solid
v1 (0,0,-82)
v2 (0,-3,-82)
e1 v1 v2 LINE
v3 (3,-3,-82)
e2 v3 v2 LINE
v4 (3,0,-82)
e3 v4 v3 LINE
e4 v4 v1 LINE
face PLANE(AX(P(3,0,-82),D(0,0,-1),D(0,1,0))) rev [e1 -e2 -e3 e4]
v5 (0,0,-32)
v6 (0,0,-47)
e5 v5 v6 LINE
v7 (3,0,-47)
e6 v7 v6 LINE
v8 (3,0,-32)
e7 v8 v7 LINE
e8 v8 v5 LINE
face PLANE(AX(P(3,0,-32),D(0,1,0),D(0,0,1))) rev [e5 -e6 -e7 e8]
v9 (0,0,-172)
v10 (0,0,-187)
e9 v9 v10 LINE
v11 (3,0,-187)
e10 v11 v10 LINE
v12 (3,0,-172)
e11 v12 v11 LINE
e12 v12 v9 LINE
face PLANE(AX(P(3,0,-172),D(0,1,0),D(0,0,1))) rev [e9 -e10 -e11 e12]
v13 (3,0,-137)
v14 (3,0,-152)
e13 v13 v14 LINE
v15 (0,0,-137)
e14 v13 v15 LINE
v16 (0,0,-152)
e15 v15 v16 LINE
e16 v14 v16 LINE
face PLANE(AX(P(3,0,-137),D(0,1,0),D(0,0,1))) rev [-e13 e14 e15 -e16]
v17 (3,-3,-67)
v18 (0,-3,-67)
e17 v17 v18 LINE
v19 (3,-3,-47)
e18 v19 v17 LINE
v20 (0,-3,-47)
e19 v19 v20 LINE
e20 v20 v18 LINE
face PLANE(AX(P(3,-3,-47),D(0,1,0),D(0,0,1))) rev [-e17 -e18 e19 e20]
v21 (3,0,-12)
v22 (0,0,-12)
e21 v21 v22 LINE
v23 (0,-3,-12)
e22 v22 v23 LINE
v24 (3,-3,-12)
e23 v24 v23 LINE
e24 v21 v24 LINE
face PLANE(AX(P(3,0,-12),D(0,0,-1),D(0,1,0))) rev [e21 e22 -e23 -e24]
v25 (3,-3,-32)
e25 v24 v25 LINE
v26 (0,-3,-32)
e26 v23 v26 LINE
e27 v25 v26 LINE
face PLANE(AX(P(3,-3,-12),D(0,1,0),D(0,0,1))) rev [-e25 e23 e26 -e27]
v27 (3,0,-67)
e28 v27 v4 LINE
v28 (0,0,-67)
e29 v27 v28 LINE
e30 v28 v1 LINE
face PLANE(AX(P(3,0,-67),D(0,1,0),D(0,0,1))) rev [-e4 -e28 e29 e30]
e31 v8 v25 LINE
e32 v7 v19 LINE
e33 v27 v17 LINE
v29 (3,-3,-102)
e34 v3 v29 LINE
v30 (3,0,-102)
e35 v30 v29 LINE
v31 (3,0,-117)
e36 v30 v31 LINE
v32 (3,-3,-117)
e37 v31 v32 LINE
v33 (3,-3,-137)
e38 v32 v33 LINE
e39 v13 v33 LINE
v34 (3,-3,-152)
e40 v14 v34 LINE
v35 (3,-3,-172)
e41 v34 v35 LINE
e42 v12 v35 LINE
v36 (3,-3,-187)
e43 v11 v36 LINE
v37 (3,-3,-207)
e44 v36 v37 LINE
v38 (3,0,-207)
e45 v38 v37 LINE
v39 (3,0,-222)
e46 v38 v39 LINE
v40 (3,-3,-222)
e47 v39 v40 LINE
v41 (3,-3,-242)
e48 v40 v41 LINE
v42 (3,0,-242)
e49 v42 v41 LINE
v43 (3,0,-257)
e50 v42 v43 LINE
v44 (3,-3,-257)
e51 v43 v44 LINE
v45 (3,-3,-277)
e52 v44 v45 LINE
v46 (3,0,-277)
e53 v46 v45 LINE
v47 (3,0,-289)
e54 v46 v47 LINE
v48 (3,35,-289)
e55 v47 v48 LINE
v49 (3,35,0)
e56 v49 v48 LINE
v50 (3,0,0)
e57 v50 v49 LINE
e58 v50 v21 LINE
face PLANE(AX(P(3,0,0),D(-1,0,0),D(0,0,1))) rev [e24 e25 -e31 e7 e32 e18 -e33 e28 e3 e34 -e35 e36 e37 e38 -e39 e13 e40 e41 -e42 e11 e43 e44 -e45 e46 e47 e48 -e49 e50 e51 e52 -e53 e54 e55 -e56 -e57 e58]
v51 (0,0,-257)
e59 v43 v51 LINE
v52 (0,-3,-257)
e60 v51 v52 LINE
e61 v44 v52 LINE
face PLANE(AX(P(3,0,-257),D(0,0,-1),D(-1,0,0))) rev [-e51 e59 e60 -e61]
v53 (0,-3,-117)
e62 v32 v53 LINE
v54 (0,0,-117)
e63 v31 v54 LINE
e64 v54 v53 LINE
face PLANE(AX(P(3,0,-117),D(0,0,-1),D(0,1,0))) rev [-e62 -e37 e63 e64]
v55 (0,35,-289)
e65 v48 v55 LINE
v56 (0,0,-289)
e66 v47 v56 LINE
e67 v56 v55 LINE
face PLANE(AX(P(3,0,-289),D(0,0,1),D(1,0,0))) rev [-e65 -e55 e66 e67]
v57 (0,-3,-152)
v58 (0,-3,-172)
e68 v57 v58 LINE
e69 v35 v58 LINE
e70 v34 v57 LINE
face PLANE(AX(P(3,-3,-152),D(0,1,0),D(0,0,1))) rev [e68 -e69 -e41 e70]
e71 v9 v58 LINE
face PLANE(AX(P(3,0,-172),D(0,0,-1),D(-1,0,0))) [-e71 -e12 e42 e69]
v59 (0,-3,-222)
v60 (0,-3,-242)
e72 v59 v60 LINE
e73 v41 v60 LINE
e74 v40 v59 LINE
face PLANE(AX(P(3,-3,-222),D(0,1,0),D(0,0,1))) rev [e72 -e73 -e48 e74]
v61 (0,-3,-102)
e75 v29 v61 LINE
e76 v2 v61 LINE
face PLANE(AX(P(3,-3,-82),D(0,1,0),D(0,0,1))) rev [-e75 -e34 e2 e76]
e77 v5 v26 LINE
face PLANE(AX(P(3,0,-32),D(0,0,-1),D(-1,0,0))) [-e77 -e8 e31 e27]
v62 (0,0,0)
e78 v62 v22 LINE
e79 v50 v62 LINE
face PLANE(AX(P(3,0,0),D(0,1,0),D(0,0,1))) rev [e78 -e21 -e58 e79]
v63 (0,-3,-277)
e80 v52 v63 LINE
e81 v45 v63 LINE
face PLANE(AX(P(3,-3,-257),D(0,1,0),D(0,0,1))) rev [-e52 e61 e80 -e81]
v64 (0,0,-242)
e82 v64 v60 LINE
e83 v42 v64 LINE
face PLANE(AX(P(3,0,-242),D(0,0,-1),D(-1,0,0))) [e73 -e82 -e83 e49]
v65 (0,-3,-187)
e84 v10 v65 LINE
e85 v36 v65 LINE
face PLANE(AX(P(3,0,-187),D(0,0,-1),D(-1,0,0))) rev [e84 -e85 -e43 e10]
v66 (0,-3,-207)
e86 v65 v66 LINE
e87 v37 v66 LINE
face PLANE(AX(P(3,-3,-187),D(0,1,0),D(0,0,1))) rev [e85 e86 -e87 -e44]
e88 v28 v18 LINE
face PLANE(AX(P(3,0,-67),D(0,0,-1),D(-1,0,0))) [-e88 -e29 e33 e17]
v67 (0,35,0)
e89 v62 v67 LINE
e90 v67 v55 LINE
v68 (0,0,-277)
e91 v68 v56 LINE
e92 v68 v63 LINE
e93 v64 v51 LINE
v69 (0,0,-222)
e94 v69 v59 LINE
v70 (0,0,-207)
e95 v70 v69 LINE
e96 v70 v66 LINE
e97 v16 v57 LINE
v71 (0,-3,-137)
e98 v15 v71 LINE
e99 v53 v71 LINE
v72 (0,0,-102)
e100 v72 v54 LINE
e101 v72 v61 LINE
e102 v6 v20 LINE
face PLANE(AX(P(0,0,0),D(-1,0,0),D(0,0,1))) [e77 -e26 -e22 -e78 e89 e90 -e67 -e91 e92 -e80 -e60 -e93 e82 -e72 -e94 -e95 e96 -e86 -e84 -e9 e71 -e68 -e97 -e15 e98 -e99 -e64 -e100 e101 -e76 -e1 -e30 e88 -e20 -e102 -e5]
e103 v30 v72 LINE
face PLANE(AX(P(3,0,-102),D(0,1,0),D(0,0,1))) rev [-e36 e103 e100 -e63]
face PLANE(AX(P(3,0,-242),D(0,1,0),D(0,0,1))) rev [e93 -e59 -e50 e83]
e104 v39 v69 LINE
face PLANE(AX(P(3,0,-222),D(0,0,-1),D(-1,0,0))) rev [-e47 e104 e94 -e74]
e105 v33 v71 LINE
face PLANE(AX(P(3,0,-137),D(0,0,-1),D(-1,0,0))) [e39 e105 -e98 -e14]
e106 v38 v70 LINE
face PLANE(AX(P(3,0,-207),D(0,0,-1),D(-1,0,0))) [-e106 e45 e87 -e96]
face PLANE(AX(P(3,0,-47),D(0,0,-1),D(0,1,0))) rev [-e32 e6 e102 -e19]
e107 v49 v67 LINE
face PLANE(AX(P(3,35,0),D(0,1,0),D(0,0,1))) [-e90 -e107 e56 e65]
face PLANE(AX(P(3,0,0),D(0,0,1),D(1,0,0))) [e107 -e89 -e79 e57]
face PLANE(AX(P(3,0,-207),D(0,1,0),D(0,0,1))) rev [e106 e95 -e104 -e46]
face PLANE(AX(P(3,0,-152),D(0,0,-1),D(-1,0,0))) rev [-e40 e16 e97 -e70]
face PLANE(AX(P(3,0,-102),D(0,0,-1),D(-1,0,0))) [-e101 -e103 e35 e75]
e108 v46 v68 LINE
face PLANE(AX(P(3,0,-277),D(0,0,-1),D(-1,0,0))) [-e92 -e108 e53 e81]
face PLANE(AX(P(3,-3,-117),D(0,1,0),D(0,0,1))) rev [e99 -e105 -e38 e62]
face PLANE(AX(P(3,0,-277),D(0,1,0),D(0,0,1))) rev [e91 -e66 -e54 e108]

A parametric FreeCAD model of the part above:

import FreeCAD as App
import Part
import Sketcher

V = App.Vector


def add_polygon(sketch, points):
    """Adds a closed chain of lines whose ends are joined by coincident constraints."""
    first, n = sketch.GeometryCount, len(points)
    for a, b in zip(points, points[1:] + points[:1]):
        sketch.addGeometry(Part.LineSegment(App.Vector(*a, 0), App.Vector(*b, 0)), False)
    for i in range(n):
        sketch.addConstraint(Sketcher.Constraint("Coincident", first + i, 2, first + (i + 1) % n, 1))

doc = App.newDocument("Part")
body = doc.addObject("PartDesign::Body", "Body")

sketch1 = doc.addObject("Sketcher::SketchObject", "Sketch")
body.addObject(sketch1)
sketch1.AttachmentSupport = (doc.YZ_Plane, [""])
sketch1.MapMode = "FlatFace"
add_polygon(sketch1, [(0, -32), (0, -47), (-3, -47), (-3, -67), (0, -67), (0, -82), (-3, -82), (-3, -102), (0, -102), (0, -117), (-3, -117), (-3, -137), (0, -137), (0, -152), (-3, -152), (-3, -172), (0, -172), (0, -187), (-3, -187), (-3, -207), (0, -207), (0, -222), (-3, -222), (-3, -242), (0, -242), (0, -257), (-3, -257), (-3, -277), (0, -277), (0, -289), (35, -289), (35, 0), (0, 0), (0, -12), (-3, -12), (-3, -32)])
sketch1.addConstraint([
    Sketcher.Constraint("Vertical", 0),
    Sketcher.Constraint("Horizontal", 1),
    Sketcher.Constraint("Vertical", 2),
    Sketcher.Constraint("Horizontal", 3),
    Sketcher.Constraint("Vertical", 4),
    Sketcher.Constraint("Horizontal", 5),
    Sketcher.Constraint("Vertical", 6),
    Sketcher.Constraint("Horizontal", 7),
    Sketcher.Constraint("Vertical", 8),
    Sketcher.Constraint("Horizontal", 9),
    Sketcher.Constraint("Vertical", 10),
    Sketcher.Constraint("Horizontal", 11),
    Sketcher.Constraint("Vertical", 12),
    Sketcher.Constraint("Horizontal", 13),
    Sketcher.Constraint("Vertical", 14),
    Sketcher.Constraint("Horizontal", 15),
    Sketcher.Constraint("Vertical", 16),
    Sketcher.Constraint("Horizontal", 17),
    Sketcher.Constraint("Vertical", 18),
    Sketcher.Constraint("Horizontal", 19),
    Sketcher.Constraint("Vertical", 20),
    Sketcher.Constraint("Horizontal", 21),
    Sketcher.Constraint("Vertical", 22),
    Sketcher.Constraint("Horizontal", 23),
    Sketcher.Constraint("Vertical", 24),
    Sketcher.Constraint("Horizontal", 25),
    Sketcher.Constraint("Vertical", 26),
    Sketcher.Constraint("Horizontal", 27),
    Sketcher.Constraint("Vertical", 28),
    Sketcher.Constraint("Horizontal", 29),
    Sketcher.Constraint("Vertical", 30),
    Sketcher.Constraint("Horizontal", 31),
    Sketcher.Constraint("Vertical", 32),
    Sketcher.Constraint("Horizontal", 33),
    Sketcher.Constraint("Vertical", 34),
    Sketcher.Constraint("Horizontal", 35),
    Sketcher.Constraint("Coincident", 31, 2, -1, 1),
    Sketcher.Constraint("PointOnObject", 0, 2, -2),
    Sketcher.Constraint("PointOnObject", 3, 2, -2),
    Sketcher.Constraint("PointOnObject", 7, 2, -2),
    Sketcher.Constraint("PointOnObject", 11, 2, -2),
    Sketcher.Constraint("PointOnObject", 15, 2, -2),
    Sketcher.Constraint("PointOnObject", 19, 2, -2),
    Sketcher.Constraint("PointOnObject", 23, 2, -2),
    Sketcher.Constraint("PointOnObject", 27, 2, -2),
    Sketcher.Constraint("Vertical", 2, 2, 5, 2),
    Sketcher.Constraint("Vertical", 6, 2, 9, 2),
    Sketcher.Constraint("Vertical", 10, 2, 13, 2),
    Sketcher.Constraint("Vertical", 14, 2, 17, 2),
    Sketcher.Constraint("Vertical", 18, 2, 21, 2),
    Sketcher.Constraint("Vertical", 22, 2, 25, 2),
    Sketcher.Constraint("Vertical", 26, 2, 33, 2),
    Sketcher.Constraint("Equal", 0, 4),
    Sketcher.Constraint("Equal", 2, 6),
    Sketcher.Constraint("Equal", 4, 8),
    Sketcher.Constraint("Equal", 6, 10),
    Sketcher.Constraint("Equal", 8, 12),
    Sketcher.Constraint("Equal", 10, 14),
    Sketcher.Constraint("Equal", 12, 16),
    Sketcher.Constraint("Equal", 14, 18),
    Sketcher.Constraint("Equal", 16, 20),
    Sketcher.Constraint("Equal", 18, 22),
    Sketcher.Constraint("Equal", 20, 24),
    Sketcher.Constraint("Equal", 22, 26),
    Sketcher.Constraint("Equal", 28, 32),
    Sketcher.Constraint("Equal", 26, 34),
    Sketcher.Constraint("DistanceX", 1, 2, 1, 1, 3.0),
    Sketcher.Constraint("DistanceX", 29, 1, 29, 2, 35.0),
    Sketcher.Constraint("DistanceY", 0, 2, 0, 1, 15.0),
    Sketcher.Constraint("DistanceY", 2, 2, 2, 1, 20.0),
    Sketcher.Constraint("DistanceY", 28, 2, 28, 1, 12.0),
])
pad1 = doc.addObject("PartDesign::Pad", "Pad")
body.addObject(pad1)
pad1.Profile = sketch1
pad1.Length = 3

doc.recompute()
